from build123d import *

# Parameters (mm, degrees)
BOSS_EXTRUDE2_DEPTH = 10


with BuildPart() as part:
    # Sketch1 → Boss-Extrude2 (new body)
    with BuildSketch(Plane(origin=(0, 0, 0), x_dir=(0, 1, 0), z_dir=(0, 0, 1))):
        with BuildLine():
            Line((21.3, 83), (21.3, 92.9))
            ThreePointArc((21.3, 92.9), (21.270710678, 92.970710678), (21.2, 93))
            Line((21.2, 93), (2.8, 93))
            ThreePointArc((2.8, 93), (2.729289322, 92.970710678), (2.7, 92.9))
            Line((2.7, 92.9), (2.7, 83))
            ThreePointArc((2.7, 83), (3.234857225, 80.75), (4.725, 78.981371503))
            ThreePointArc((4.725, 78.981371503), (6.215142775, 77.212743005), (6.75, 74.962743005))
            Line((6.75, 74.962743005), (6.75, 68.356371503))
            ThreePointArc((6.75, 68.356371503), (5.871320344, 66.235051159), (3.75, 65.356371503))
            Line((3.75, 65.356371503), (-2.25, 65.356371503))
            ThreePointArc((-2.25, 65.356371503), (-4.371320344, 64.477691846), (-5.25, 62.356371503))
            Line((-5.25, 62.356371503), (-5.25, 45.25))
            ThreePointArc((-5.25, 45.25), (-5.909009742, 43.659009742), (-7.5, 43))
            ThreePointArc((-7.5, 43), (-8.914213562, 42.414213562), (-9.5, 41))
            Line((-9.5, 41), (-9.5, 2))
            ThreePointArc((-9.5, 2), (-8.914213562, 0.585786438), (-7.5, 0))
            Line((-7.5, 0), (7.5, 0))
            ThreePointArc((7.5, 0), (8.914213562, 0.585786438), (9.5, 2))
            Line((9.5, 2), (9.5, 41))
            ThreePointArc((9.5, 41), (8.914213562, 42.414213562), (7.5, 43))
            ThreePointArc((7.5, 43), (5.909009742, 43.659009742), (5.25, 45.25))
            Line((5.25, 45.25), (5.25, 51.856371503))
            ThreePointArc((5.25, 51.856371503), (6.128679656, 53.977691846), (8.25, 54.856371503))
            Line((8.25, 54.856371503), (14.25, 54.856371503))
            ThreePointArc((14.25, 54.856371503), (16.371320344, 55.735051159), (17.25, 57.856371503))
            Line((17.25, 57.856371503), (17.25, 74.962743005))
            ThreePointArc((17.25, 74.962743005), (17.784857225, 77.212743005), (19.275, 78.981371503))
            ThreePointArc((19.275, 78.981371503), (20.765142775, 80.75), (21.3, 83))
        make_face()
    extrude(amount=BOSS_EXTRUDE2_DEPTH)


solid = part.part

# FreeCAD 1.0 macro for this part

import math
import FreeCAD as App
import Part
import Sketcher
from FreeCAD import Vector

doc = App.newDocument("Part")
params = doc.addObject("Spreadsheet::Sheet", "Params")
for row, (alias, value) in enumerate([
    ("sketch1_radius", "5 mm"),
    ("sketch1_radius2", "3 mm"),
    ("sketch1_radius3", "2 mm"),
    ("sketch1_radius4", "0.1 mm"),
    ("sketch1_width", "39 mm"),
    ("pad1_length", "10 mm"),
], start=1):
    params.set(f"A{row}", alias)
    params.set(f"B{row}", "=" + value)
    params.setAlias(f"B{row}", alias)

body = doc.addObject("PartDesign::Body", "Body")

# Sketch on XY plane
sketch1 = body.newObject("Sketcher::SketchObject", "Sketch")
sketch1.AttachmentSupport = (doc.getObject("XY_Plane"), [""])
sketch1.MapMode = "FlatFace"
sketch1.addGeometry([
    Part.LineSegment(Vector(-83, 21.3, 0), Vector(-92.9, 21.3, 0)),  # 0
    Part.ArcOfCircle(Part.Circle(Vector(-92.9, 21.2, 0), Vector(0, 0, 1), 0.1), math.radians(90), math.radians(180)),  # 1
    Part.LineSegment(Vector(-93, 21.2, 0), Vector(-93, 2.8, 0)),  # 2
    Part.ArcOfCircle(Part.Circle(Vector(-92.9, 2.8, 0), Vector(0, 0, 1), 0.1), math.radians(180), math.radians(270)),  # 3
    Part.LineSegment(Vector(-92.9, 2.7, 0), Vector(-83, 2.7, 0)),  # 4
    Part.ArcOfCircle(Part.Circle(Vector(-83, 7.7, 0), Vector(0, 0, 1), 5), math.radians(-90), math.radians(-37)),  # 5
    Part.ArcOfCircle(Part.Circle(Vector(-74.96, 1.75, 0), Vector(0, 0, 1), 5), math.radians(90), math.radians(143)),  # 6
    Part.LineSegment(Vector(-74.96, 6.75, 0), Vector(-68.36, 6.75, 0)),  # 7
    Part.ArcOfCircle(Part.Circle(Vector(-68.36, 3.75, 0), Vector(0, 0, 1), 3), math.radians(0), math.radians(90)),  # 8
    Part.LineSegment(Vector(-65.36, 3.75, 0), Vector(-65.36, -2.25, 0)),  # 9
    Part.ArcOfCircle(Part.Circle(Vector(-62.36, -2.25, 0), Vector(0, 0, 1), 3), math.radians(180), math.radians(270)),  # 10
    Part.LineSegment(Vector(-62.36, -5.25, 0), Vector(-45.25, -5.25, 0)),  # 11
    Part.ArcOfCircle(Part.Circle(Vector(-45.25, -7.5, 0), Vector(0, 0, 1), 2.25), math.radians(0), math.radians(90)),  # 12
    Part.ArcOfCircle(Part.Circle(Vector(-41, -7.5, 0), Vector(0, 0, 1), 2), math.radians(-180), math.radians(-90)),  # 13
    Part.LineSegment(Vector(-41, -9.5, 0), Vector(-2, -9.5, 0)),  # 14
    Part.ArcOfCircle(Part.Circle(Vector(-2, -7.5, 0), Vector(0, 0, 1), 2), math.radians(-90), math.radians(0)),  # 15
    Part.LineSegment(Vector(0, -7.5, 0), Vector(0, 7.5, 0)),  # 16
    Part.ArcOfCircle(Part.Circle(Vector(-2, 7.5, 0), Vector(0, 0, 1), 2), math.radians(0), math.radians(90)),  # 17
    Part.LineSegment(Vector(-2, 9.5, 0), Vector(-41, 9.5, 0)),  # 18
    Part.ArcOfCircle(Part.Circle(Vector(-41, 7.5, 0), Vector(0, 0, 1), 2), math.radians(90), math.radians(180)),  # 19
    Part.ArcOfCircle(Part.Circle(Vector(-45.25, 7.5, 0), Vector(0, 0, 1), 2.25), math.radians(-90), math.radians(0)),  # 20
    Part.LineSegment(Vector(-45.25, 5.25, 0), Vector(-51.86, 5.25, 0)),  # 21
    Part.ArcOfCircle(Part.Circle(Vector(-51.86, 8.25, 0), Vector(0, 0, 1), 3), math.radians(180), math.radians(270)),  # 22
    Part.LineSegment(Vector(-54.86, 8.25, 0), Vector(-54.86, 14.25, 0)),  # 23
    Part.ArcOfCircle(Part.Circle(Vector(-57.86, 14.25, 0), Vector(0, 0, 1), 3), math.radians(0), math.radians(90)),  # 24
    Part.LineSegment(Vector(-57.86, 17.25, 0), Vector(-74.96, 17.25, 0)),  # 25
    Part.ArcOfCircle(Part.Circle(Vector(-74.96, 22.25, 0), Vector(0, 0, 1), 5), math.radians(-143), math.radians(-90)),  # 26
    Part.ArcOfCircle(Part.Circle(Vector(-83, 16.3, 0), Vector(0, 0, 1), 5), math.radians(37), math.radians(90)),  # 27
], False)
sketch1.addConstraint([
    Sketcher.Constraint("Tangent", 0, 2, 1, 1),
    Sketcher.Constraint("Tangent", 1, 2, 2, 1),
    Sketcher.Constraint("Tangent", 2, 2, 3, 1),
    Sketcher.Constraint("Tangent", 3, 2, 4, 1),
    Sketcher.Constraint("Tangent", 4, 2, 5, 1),
    Sketcher.Constraint("Tangent", 5, 2, 6, 2),
    Sketcher.Constraint("Tangent", 6, 1, 7, 1),
    Sketcher.Constraint("Tangent", 7, 2, 8, 2),
    Sketcher.Constraint("Tangent", 8, 1, 9, 1),
    Sketcher.Constraint("Tangent", 9, 2, 10, 1),
    Sketcher.Constraint("Tangent", 10, 2, 11, 1),
    Sketcher.Constraint("Tangent", 11, 2, 12, 2),
    Sketcher.Constraint("Tangent", 12, 1, 13, 1),
    Sketcher.Constraint("Tangent", 13, 2, 14, 1),
    Sketcher.Constraint("Tangent", 14, 2, 15, 1),
    Sketcher.Constraint("Tangent", 15, 2, 16, 1),
    Sketcher.Constraint("Tangent", 16, 2, 17, 1),
    Sketcher.Constraint("Tangent", 17, 2, 18, 1),
    Sketcher.Constraint("Tangent", 18, 2, 19, 1),
    Sketcher.Constraint("Tangent", 19, 2, 20, 2),
    Sketcher.Constraint("Tangent", 20, 1, 21, 1),
    Sketcher.Constraint("Tangent", 21, 2, 22, 2),
    Sketcher.Constraint("Tangent", 22, 1, 23, 1),
    Sketcher.Constraint("Tangent", 23, 2, 24, 1),
    Sketcher.Constraint("Tangent", 24, 2, 25, 1),
    Sketcher.Constraint("Tangent", 25, 2, 26, 2),
    Sketcher.Constraint("Tangent", 26, 1, 27, 1),
    Sketcher.Constraint("Tangent", 27, 2, 0, 1),
    Sketcher.Constraint("Horizontal", 0),
    Sketcher.Constraint("Vertical", 2),
    Sketcher.Constraint("Horizontal", 4),
    Sketcher.Constraint("Horizontal", 7),
    Sketcher.Constraint("Vertical", 9),
    Sketcher.Constraint("Horizontal", 11),
    Sketcher.Constraint("Horizontal", 14),
    Sketcher.Constraint("Vertical", 16),
    Sketcher.Constraint("Horizontal", 18),
    Sketcher.Constraint("Horizontal", 21),
    Sketcher.Constraint("Vertical", 23),
    Sketcher.Constraint("Horizontal", 25),
    Sketcher.Constraint("Equal", 1, 3),
    Sketcher.Constraint("Equal", 5, 6),
    Sketcher.Constraint("Equal", 8, 10),
    Sketcher.Constraint("Equal", 13, 15),
    Sketcher.Constraint("Equal", 15, 17),
    Sketcher.Constraint("Equal", 17, 19),
    Sketcher.Constraint("Equal", 12, 20),
    Sketcher.Constraint("Equal", 10, 22),
    Sketcher.Constraint("Equal", 22, 24),
    Sketcher.Constraint("Equal", 6, 26),
    Sketcher.Constraint("Equal", 26, 27),
    Sketcher.Constraint("Symmetric", 15, 2, 16, 2, -1, 1),
    Sketcher.Constraint("Symmetric", 12, 3, 20, 3, -1),
    Sketcher.Constraint("Horizontal", 12, 3, 13, 3),
    Sketcher.Constraint("Vertical", 6, 3, 26, 3),
    Sketcher.Constraint("Vertical", 5, 3, 27, 3),
    Sketcher.Constraint("Equal", 7, 21),
    Sketcher.Constraint("Equal", 9, 23),
    Sketcher.Constraint("Radius", 5, 5.0),
    Sketcher.Constraint("Radius", 8, 3.0),
    Sketcher.Constraint("Radius", 13, 2.0),
    Sketcher.Constraint("Radius", 1, 0.1),
    Sketcher.Constraint("DistanceX", 14, 1, 14, 2, 39.0),
    Sketcher.Constraint("DistanceY", 9, 2, 9, 1, 6.0),
    Sketcher.Constraint("DistanceY", 16, 1, 16, 2, 15.0),
    Sketcher.Constraint("Radius", 12, 2.25),
    Sketcher.Constraint("DistanceX", 0, 2, 0, 1, 9.9),
    Sketcher.Constraint("DistanceY", 2, 2, 2, 1, 18.4),
    Sketcher.Constraint("DistanceX", 5, 3, -1, 1, 83.0),
    Sketcher.Constraint("DistanceX", 10, 3, 22, 3, 10.5),
])
sketch1.setExpression("Constraints[58]", "Params.sketch1_radius")
sketch1.setExpression("Constraints[59]", "Params.sketch1_radius2")
sketch1.setExpression("Constraints[60]", "Params.sketch1_radius3")
sketch1.setExpression("Constraints[61]", "Params.sketch1_radius4")
sketch1.setExpression("Constraints[62]", "Params.sketch1_width")
pad1 = body.newObject("PartDesign::Pad", "Pad")
pad1.Profile = sketch1
pad1.setExpression("Length", "Params.pad1_length")

doc.recompute()
